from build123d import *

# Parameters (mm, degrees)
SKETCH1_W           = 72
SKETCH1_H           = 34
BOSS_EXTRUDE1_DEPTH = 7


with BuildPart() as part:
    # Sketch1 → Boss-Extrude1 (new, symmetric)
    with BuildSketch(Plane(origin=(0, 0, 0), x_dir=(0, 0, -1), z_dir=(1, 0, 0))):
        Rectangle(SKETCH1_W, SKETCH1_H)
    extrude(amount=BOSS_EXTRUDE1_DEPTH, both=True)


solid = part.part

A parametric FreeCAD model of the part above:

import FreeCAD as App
import Part
import Sketcher


def add_polygon(sketch, points):
    """Adds a closed chain of lines whose ends are joined by coincident constraints."""
    first, n = sketch.GeometryCount, len(points)
    for a, b in zip(points, points[1:] + points[:1]):
        sketch.addGeometry(Part.LineSegment(App.Vector(*a, 0), App.Vector(*b, 0)), False)
    for i in range(n):
        sketch.addConstraint(Sketcher.Constraint("Coincident", first + i, 2, first + (i + 1) % n, 1))

doc = App.newDocument("Part")
params = doc.addObject("Spreadsheet::Sheet", "Params")
for row, (alias, value) in enumerate([
    ("sketch1_width", "34 mm"),
    ("sketch1_height", "72 mm"),
    ("pad1_length", "14 mm"),
], start=1):
    params.set(f"A{row}", alias)
    params.set(f"B{row}", "=" + value)
    params.setAlias(f"B{row}", alias)

body = doc.addObject("PartDesign::Body", "Body")

# Sketch on YZ plane
sketch1 = body.newObject("Sketcher::SketchObject", "Sketch")
sketch1.AttachmentSupport = (doc.getObject("YZ_Plane"), [""])
sketch1.MapMode = "FlatFace"
add_polygon(sketch1, [(17, 36), (-17, 36), (-17, -36), (17, -36)])  # lines 0-3
sketch1.addConstraint([
    Sketcher.Constraint("Horizontal", 0),
    Sketcher.Constraint("Vertical", 1),
    Sketcher.Constraint("Horizontal", 2),
    Sketcher.Constraint("Vertical", 3),
    Sketcher.Constraint("Symmetric", 0, 2, 2, 2, -1, 1),
    Sketcher.Constraint("DistanceX", 0, 2, 0, 1, 34.0),
    Sketcher.Constraint("DistanceY", 1, 2, 1, 1, 72.0),
])
sketch1.setExpression("Constraints[9]", "Params.sketch1_width")
sketch1.setExpression("Constraints[10]", "Params.sketch1_height")
pad1 = body.newObject("PartDesign::Pad", "Pad")
pad1.Profile = sketch1
pad1.setExpression("Length", "Params.pad1_length")
pad1.Midplane = True

doc.recompute()
